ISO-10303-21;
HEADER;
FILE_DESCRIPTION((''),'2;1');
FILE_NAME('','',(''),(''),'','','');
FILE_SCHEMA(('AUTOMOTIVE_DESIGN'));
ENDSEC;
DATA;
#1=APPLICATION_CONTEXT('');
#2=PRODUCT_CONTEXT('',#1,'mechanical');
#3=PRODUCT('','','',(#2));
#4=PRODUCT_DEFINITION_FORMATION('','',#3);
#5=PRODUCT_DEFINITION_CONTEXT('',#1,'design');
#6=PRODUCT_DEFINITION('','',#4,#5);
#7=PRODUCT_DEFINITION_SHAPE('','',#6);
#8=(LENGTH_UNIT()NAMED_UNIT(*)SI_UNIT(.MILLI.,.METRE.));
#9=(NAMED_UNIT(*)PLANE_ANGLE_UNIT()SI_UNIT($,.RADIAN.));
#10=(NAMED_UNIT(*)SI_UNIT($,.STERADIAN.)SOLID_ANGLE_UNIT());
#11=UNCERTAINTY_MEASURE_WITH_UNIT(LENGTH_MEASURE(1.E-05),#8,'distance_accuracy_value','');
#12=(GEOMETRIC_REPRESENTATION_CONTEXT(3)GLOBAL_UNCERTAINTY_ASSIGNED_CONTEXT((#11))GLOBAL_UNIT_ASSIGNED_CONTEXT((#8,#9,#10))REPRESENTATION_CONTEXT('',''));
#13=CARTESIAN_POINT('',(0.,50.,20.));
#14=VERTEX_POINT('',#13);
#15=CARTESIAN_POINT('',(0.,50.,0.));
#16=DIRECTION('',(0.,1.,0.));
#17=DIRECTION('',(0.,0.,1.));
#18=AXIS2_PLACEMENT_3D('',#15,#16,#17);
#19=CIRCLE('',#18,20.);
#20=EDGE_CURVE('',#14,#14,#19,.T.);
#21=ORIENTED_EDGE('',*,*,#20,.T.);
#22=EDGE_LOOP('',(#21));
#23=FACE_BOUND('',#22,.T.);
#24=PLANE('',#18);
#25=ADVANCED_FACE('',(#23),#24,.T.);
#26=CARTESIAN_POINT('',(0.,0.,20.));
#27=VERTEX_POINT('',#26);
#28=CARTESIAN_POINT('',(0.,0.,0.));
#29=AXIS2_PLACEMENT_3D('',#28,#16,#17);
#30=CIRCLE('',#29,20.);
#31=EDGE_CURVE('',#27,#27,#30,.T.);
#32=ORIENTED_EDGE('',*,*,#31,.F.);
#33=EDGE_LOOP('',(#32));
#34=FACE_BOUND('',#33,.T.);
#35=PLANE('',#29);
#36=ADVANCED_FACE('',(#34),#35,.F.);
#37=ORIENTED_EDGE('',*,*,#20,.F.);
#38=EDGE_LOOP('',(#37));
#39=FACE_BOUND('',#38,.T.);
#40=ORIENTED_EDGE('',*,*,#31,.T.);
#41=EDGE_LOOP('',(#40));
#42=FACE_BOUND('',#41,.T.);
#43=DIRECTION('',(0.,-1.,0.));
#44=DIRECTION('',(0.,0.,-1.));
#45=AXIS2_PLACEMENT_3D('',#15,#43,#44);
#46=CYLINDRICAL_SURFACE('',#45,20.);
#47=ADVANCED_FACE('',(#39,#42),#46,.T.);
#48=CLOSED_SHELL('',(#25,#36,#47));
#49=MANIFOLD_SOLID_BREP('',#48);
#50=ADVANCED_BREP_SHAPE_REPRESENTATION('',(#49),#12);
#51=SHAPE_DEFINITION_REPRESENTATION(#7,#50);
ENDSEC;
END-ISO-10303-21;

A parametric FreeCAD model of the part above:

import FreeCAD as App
import Part
import Sketcher

V = App.Vector
Q = App.Units.Quantity

doc = App.newDocument("Part")
body = doc.addObject("PartDesign::Body", "Body")

sketch1 = body.newObject("Sketcher::SketchObject", "Sketch")
sketch1.AttachmentSupport = (doc.getObject("XZ_Plane"), [""])
sketch1.MapMode = "FlatFace"
sketch1.addGeometry(Part.Circle(V(0, 0, 0), V(0, 0, 1), 20), False)
sketch1.addConstraint([
    Sketcher.Constraint("Coincident", 0, 3, -1, 1),
    Sketcher.Constraint("Diameter", 0, Q("40 mm")),
])
pad1 = body.newObject("PartDesign::Pad", "Pad")
pad1.Profile = sketch1
pad1.Length = 50
pad1.Reversed = True

doc.recompute()
